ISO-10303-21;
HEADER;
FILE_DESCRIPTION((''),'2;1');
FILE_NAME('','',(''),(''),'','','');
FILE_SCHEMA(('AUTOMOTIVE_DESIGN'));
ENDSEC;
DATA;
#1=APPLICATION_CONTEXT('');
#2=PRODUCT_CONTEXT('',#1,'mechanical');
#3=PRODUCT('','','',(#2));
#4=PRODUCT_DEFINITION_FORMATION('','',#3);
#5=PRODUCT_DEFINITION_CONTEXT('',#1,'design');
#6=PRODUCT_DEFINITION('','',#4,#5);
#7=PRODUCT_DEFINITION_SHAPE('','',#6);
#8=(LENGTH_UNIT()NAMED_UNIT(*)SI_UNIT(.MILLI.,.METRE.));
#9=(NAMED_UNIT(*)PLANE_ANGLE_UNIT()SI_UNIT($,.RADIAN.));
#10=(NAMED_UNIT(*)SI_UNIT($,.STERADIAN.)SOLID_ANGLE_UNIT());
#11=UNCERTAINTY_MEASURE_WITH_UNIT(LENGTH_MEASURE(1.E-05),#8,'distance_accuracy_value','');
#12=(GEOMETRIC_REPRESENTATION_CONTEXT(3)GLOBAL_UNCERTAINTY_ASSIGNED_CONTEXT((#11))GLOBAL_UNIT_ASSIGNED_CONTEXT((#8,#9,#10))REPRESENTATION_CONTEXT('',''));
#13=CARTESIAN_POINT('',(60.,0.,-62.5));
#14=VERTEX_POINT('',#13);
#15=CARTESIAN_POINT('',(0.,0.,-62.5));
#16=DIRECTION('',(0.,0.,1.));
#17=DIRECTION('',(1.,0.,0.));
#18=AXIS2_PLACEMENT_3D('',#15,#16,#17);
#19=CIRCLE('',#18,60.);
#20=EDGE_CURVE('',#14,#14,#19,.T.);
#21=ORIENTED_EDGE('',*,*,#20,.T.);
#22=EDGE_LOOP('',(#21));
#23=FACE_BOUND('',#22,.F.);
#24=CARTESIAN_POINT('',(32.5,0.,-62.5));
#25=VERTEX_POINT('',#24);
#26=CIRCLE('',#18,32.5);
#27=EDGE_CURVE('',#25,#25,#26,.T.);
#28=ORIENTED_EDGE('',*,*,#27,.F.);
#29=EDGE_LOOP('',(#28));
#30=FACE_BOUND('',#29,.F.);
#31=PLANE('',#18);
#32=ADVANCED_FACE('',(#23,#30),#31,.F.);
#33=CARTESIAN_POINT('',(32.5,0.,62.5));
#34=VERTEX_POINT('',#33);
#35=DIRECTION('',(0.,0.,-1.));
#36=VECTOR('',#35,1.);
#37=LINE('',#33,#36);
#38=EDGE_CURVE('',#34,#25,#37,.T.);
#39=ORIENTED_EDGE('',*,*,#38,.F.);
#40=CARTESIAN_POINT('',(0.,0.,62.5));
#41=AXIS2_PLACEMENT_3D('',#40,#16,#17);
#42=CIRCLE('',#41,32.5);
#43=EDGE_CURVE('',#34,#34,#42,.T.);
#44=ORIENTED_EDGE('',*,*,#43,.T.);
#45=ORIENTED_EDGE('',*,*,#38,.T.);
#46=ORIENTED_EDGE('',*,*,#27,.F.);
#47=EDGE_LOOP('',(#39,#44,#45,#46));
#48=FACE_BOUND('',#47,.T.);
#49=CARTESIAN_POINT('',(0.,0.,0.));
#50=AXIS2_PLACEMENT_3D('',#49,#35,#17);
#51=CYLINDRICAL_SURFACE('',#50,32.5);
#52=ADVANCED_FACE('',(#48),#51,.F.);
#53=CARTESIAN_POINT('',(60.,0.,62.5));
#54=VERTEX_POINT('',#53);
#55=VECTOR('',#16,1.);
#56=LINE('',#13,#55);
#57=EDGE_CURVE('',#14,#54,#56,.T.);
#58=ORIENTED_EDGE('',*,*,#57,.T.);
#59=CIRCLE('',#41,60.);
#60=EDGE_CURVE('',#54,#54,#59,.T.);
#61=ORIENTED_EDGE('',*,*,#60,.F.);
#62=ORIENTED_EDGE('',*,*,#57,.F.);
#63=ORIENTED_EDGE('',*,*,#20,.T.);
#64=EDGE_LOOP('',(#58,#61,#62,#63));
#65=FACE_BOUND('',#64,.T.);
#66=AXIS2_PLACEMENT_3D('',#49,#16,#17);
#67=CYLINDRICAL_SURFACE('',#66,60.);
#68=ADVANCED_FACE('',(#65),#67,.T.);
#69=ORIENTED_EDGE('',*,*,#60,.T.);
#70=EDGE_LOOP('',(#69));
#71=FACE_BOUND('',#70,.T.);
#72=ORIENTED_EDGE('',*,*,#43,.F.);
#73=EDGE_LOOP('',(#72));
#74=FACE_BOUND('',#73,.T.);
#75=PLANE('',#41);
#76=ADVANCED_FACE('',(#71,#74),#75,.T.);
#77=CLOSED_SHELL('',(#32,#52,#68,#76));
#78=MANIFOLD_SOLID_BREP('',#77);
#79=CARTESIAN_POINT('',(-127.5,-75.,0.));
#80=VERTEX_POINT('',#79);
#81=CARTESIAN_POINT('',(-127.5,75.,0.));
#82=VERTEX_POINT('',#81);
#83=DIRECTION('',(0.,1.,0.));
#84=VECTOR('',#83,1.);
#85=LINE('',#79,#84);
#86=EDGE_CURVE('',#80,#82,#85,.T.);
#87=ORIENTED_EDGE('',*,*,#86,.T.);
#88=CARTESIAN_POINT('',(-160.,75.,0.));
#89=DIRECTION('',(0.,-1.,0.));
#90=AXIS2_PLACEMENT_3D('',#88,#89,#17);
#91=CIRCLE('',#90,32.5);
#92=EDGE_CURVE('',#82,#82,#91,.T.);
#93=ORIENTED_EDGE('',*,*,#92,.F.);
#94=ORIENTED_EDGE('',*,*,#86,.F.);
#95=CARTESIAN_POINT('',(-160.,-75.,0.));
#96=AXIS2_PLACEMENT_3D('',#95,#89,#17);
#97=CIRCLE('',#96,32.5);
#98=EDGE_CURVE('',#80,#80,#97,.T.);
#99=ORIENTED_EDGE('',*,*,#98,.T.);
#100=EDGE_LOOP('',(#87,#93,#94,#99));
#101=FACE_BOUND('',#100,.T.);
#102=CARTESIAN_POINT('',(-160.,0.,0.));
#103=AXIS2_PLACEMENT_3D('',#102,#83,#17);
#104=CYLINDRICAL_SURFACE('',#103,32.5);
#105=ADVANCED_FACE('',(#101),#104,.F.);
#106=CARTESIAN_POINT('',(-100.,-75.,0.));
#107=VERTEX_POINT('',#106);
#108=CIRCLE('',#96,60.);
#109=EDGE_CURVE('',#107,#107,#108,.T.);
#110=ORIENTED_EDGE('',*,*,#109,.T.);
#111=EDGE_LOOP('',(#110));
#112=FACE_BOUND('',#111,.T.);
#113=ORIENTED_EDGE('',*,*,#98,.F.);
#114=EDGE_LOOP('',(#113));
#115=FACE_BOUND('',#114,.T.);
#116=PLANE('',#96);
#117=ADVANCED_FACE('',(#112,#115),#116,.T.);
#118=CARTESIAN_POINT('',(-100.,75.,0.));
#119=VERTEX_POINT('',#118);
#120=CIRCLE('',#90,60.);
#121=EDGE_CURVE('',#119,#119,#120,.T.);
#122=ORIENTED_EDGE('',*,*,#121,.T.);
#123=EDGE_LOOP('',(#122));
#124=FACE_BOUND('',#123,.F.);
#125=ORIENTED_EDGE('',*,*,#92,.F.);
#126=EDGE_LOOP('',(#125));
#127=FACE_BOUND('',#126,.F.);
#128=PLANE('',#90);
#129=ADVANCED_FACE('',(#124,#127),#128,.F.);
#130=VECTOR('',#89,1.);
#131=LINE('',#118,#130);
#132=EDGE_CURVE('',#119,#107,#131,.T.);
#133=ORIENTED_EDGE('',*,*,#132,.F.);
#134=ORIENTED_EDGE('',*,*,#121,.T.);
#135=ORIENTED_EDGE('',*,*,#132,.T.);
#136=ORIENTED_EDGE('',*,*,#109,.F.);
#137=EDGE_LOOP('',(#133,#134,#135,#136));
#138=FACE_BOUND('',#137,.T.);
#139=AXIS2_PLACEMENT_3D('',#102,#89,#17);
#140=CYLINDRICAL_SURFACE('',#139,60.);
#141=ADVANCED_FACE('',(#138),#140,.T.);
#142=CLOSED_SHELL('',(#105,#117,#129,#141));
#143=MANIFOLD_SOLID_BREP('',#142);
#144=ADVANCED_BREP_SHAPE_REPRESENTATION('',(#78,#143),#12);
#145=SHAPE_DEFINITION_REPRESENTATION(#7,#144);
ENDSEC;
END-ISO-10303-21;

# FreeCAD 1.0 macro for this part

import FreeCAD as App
import Part
import Sketcher
from FreeCAD import Vector
Q = App.Units.Quantity

doc = App.newDocument("Part")
body = doc.addObject("PartDesign::Body", "Body")

# Sketch on XY plane
sketch1 = body.newObject("Sketcher::SketchObject", "Sketch")
sketch1.AttachmentSupport = (doc.getObject("XY_Plane"), [""])
sketch1.MapMode = "FlatFace"
sketch1.addGeometry([
    Part.Circle(Vector(0, 0, 0), Vector(0, 0, 1), 60),
    Part.Circle(Vector(0, 0, 0), Vector(0, 0, 1), 32),
], False)
sketch1.addConstraint([
    Sketcher.Constraint("Coincident", 0, 3, -1, 1),
    Sketcher.Constraint("Coincident", 1, 3, -1, 1),
    Sketcher.Constraint("Diameter", 0, Q("120 mm")),
    Sketcher.Constraint("Diameter", 1, Q("65 mm")),
])
pad1 = body.newObject("PartDesign::Pad", "Pad")
pad1.Profile = sketch1
pad1.Length = 125
pad1.Midplane = True
body2 = doc.addObject("PartDesign::Body", "Body001")

# Sketch on XZ plane
sketch2 = body2.newObject("Sketcher::SketchObject", "Sketch001")
sketch2.AttachmentSupport = (doc.getObject("XZ_Plane001"), [""])
sketch2.MapMode = "FlatFace"
sketch2.addGeometry([
    Part.Circle(Vector(-160, 0, 0), Vector(0, 0, 1), 60),
    Part.Circle(Vector(-160, 0, 0), Vector(0, 0, 1), 32),
], False)
sketch2.addConstraint([
    Sketcher.Constraint("Coincident", 1, 3, 0, 3),
    Sketcher.Constraint("PointOnObject", 0, 3, -1),
    Sketcher.Constraint("Diameter", 0, Q("120 mm")),
    Sketcher.Constraint("Diameter", 1, Q("65 mm")),
    Sketcher.Constraint("DistanceX", 0, 3, -1, 1, Q("160 mm")),
])
pad2 = body2.newObject("PartDesign::Pad", "Pad001")
pad2.Profile = sketch2
pad2.Length = 150
pad2.Midplane = True

doc.recompute()
